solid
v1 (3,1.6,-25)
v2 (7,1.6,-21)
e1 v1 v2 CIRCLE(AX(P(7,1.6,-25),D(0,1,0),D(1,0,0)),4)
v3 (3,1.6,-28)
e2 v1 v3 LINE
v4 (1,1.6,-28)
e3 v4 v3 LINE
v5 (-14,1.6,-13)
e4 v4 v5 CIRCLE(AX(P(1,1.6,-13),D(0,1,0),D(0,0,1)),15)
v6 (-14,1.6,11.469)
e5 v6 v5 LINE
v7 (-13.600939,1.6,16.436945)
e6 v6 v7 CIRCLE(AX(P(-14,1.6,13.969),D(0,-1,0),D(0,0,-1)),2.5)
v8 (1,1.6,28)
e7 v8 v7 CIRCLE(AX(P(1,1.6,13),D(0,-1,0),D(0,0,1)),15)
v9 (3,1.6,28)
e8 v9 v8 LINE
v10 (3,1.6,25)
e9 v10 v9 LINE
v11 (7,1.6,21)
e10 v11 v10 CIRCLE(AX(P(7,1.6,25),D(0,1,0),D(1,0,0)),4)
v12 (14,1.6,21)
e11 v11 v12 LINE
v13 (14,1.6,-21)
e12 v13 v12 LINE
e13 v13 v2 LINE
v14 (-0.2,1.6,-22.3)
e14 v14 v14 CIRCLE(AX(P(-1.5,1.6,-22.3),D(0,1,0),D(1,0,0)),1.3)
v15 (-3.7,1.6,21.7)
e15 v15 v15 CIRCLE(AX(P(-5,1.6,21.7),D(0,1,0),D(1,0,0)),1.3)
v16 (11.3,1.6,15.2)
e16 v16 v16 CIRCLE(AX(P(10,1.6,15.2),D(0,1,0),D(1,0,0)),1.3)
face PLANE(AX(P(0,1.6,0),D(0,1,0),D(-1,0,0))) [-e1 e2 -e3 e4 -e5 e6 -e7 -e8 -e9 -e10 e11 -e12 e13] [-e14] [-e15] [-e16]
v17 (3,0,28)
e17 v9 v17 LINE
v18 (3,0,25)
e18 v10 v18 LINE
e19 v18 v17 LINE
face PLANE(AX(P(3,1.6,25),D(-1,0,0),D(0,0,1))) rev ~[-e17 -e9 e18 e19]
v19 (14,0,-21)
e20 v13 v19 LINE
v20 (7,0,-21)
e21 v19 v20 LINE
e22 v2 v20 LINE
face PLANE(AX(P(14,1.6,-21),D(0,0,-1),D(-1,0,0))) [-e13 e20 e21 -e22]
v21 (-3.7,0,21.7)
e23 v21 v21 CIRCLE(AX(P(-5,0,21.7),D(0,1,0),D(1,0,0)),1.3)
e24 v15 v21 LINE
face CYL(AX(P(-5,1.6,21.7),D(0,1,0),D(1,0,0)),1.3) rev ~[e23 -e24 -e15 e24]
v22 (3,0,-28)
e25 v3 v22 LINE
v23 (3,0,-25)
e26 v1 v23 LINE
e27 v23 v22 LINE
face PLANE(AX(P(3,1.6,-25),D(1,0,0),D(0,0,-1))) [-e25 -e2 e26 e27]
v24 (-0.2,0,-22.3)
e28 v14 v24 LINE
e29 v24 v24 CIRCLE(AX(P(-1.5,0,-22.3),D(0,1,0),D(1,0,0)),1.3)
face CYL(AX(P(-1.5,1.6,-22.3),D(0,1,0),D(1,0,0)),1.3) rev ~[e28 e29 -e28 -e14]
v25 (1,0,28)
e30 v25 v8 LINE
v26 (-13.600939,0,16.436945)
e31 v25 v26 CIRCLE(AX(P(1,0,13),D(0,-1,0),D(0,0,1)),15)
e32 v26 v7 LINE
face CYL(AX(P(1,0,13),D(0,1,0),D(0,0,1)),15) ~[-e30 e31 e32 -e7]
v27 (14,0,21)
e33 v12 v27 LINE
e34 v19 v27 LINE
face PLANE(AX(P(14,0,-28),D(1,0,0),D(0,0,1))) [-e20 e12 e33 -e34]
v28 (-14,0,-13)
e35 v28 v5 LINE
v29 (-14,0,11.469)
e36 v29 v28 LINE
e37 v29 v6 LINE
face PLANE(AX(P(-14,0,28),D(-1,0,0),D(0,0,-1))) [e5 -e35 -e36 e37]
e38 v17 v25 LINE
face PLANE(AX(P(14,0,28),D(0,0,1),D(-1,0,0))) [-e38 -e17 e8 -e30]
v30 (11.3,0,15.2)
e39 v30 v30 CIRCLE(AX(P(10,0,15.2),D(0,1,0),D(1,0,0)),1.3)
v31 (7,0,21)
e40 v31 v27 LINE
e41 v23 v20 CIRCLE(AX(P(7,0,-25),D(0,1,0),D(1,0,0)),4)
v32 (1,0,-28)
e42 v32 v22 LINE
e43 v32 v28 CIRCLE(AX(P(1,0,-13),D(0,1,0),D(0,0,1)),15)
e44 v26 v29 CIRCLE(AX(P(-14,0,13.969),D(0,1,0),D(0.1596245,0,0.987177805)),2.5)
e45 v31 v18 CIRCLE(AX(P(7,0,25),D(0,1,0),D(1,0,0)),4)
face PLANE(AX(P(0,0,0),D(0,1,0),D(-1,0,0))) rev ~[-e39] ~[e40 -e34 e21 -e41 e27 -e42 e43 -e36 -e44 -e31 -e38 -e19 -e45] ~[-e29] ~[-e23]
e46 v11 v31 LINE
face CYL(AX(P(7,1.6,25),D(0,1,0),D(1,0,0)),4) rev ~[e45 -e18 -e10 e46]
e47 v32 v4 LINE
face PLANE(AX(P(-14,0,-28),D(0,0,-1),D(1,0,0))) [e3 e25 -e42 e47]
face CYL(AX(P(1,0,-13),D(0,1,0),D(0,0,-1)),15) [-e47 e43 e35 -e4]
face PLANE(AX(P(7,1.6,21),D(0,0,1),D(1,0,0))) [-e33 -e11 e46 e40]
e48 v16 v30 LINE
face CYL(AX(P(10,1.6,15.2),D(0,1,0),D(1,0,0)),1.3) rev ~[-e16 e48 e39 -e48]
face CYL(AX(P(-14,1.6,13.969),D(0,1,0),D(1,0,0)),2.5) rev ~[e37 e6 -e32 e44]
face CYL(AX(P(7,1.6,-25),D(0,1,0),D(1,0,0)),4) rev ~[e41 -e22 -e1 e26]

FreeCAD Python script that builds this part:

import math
import FreeCAD as App
import Part
import Sketcher

V = App.Vector


def edges_at(feature, points):
    """Names of the edges that pass closest to the given points."""
    edges = feature.Shape.Edges
    near = lambda p: min(range(len(edges)), key=lambda i: edges[i].distToShape(Part.Vertex(*p))[0])
    return sorted({f"Edge{near(p) + 1}" for p in points})


def add_polygon(sketch, points):
    """Adds a closed chain of lines whose ends are joined by coincident constraints."""
    first, n = sketch.GeometryCount, len(points)
    for a, b in zip(points, points[1:] + points[:1]):
        sketch.addGeometry(Part.LineSegment(App.Vector(*a, 0), App.Vector(*b, 0)), False)
    for i in range(n):
        sketch.addConstraint(Sketcher.Constraint("Coincident", first + i, 2, first + (i + 1) % n, 1))

doc = App.newDocument("Part")
params = doc.addObject("Spreadsheet::Sheet", "Params")
for row, (alias, value) in enumerate([
    ("sketch1_width", "28 mm"),
    ("sketch1_height", "56 mm"),
    ("pad1_length", "1.6 mm"),
    ("fillet_radius", "15 mm"),
    ("sketch2_radius", "4 mm"),
    ("sketch2_width", "7 mm"),
    ("sketch3_diameter", "2.6 mm"),
    ("sketch4_diameter", "5 mm"),
], start=1):
    params.set(f"A{row}", alias)
    params.set(f"B{row}", "=" + value)
    params.setAlias(f"B{row}", alias)

body = doc.addObject("PartDesign::Body", "Body")

# Sketch on XZ plane
sketch1 = body.newObject("Sketcher::SketchObject", "Sketch")
sketch1.AttachmentSupport = (doc.getObject("XZ_Plane"), [""])
sketch1.MapMode = "FlatFace"
add_polygon(sketch1, [(14, -28), (-14, -28), (-14, 28), (14, 28)])  # lines 0-3
sketch1.addConstraint(Sketcher.Constraint("Horizontal", 0))
sketch1.addConstraint(Sketcher.Constraint("Vertical", 1))
sketch1.addConstraint(Sketcher.Constraint("Horizontal", 2))
sketch1.addConstraint(Sketcher.Constraint("Vertical", 3))
sketch1.addConstraint(Sketcher.Constraint("Symmetric", 0, 2, 2, 2, -1, 1))
sketch1.addConstraint(Sketcher.Constraint("DistanceX", 0, 2, 0, 1, 28.0))
sketch1.addConstraint(Sketcher.Constraint("DistanceY", 1, 1, 1, 2, 56.0))
sketch1.setExpression("Constraints[9]", "Params.sketch1_width")
sketch1.setExpression("Constraints[10]", "Params.sketch1_height")
pad1 = body.newObject("PartDesign::Pad", "Pad")
pad1.Profile = sketch1
pad1.setExpression("Length", "Params.pad1_length")
pad1.Reversed = True
doc.recompute()

fillet = body.newObject("PartDesign::Fillet", "Fillet")
fillet.Base = (pad1, edges_at(pad1, [(-14, 0.8, -28), (-14, 0.8, 28)]))
fillet.setExpression("Radius", "Params.fillet_radius")

# Sketch on XZ plane
sketch2 = body.newObject("Sketcher::SketchObject", "Sketch001")
sketch2.AttachmentSupport = (doc.getObject("XZ_Plane"), [""])
sketch2.MapMode = "FlatFace"
sketch2.AttachmentOffset = App.Placement(V(0, 0, -1.6), App.Rotation())
sketch2.addGeometry(Part.ArcOfCircle(Part.Circle(V(7, -25, 0), V(0, 0, 1), 4), math.radians(90), math.radians(180)), False)
sketch2.addGeometry(Part.LineSegment(V(7, -21, 0), V(14, -21, 0)), False)
sketch2.addGeometry(Part.LineSegment(V(14, -21, 0), V(14, -28, 0)), False)
sketch2.addGeometry(Part.LineSegment(V(14, -28, 0), V(3, -28, 0)), False)
sketch2.addGeometry(Part.LineSegment(V(3, -28, 0), V(3, -25, 0)), False)
sketch2.addGeometry(Part.LineSegment(V(14, 28, 0), V(14, 21, 0)), False)
sketch2.addGeometry(Part.LineSegment(V(14, 21, 0), V(7, 21, 0)), False)
sketch2.addGeometry(Part.ArcOfCircle(Part.Circle(V(7, 25, 0), V(0, 0, 1), 4), math.radians(180), math.radians(270)), False)
sketch2.addGeometry(Part.LineSegment(V(3, 25, 0), V(3, 28, 0)), False)
sketch2.addGeometry(Part.LineSegment(V(3, 28, 0), V(14, 28, 0)), False)
sketch2.addConstraint(Sketcher.Constraint("Tangent", 0, 1, 1, 1))
sketch2.addConstraint(Sketcher.Constraint("Coincident", 1, 2, 2, 1))
sketch2.addConstraint(Sketcher.Constraint("Coincident", 2, 2, 3, 1))
sketch2.addConstraint(Sketcher.Constraint("Coincident", 3, 2, 4, 1))
sketch2.addConstraint(Sketcher.Constraint("Tangent", 4, 2, 0, 2))
sketch2.addConstraint(Sketcher.Constraint("Coincident", 5, 2, 6, 1))
sketch2.addConstraint(Sketcher.Constraint("Tangent", 6, 2, 7, 2))
sketch2.addConstraint(Sketcher.Constraint("Tangent", 7, 1, 8, 1))
sketch2.addConstraint(Sketcher.Constraint("Coincident", 8, 2, 9, 1))
sketch2.addConstraint(Sketcher.Constraint("Coincident", 9, 2, 5, 1))
sketch2.addConstraint(Sketcher.Constraint("Horizontal", 1))
sketch2.addConstraint(Sketcher.Constraint("Vertical", 2))
sketch2.addConstraint(Sketcher.Constraint("Horizontal", 3))
sketch2.addConstraint(Sketcher.Constraint("Vertical", 4))
sketch2.addConstraint(Sketcher.Constraint("Vertical", 5))
sketch2.addConstraint(Sketcher.Constraint("Horizontal", 6))
sketch2.addConstraint(Sketcher.Constraint("Vertical", 8))
sketch2.addConstraint(Sketcher.Constraint("Horizontal", 9))
sketch2.addConstraint(Sketcher.Constraint("Equal", 0, 7))
sketch2.addConstraint(Sketcher.Constraint("Symmetric", 0, 3, 7, 3, -1))
sketch2.addConstraint(Sketcher.Constraint("Symmetric", 2, 2, 9, 2, -1))
sketch2.addConstraint(Sketcher.Constraint("Equal", 6, 2))
sketch2.addConstraint(Sketcher.Constraint("Radius", 0, 4.0))
sketch2.addConstraint(Sketcher.Constraint("DistanceX", 1, 1, 1, 2, 7.0))
sketch2.addConstraint(Sketcher.Constraint("DistanceX", -1, 1, 0, 3, 7.0))
sketch2.addConstraint(Sketcher.Constraint("DistanceY", 0, 3, -1, 1, 25.0))
sketch2.setExpression("Constraints[22]", "Params.sketch2_radius")
sketch2.setExpression("Constraints[23]", "Params.sketch2_width")
pocket1 = body.newObject("PartDesign::Pocket", "Pocket")
pocket1.Profile = sketch2
pocket1.Type = "ThroughAll"
pocket1.Reversed = True

# Sketch on XZ plane
sketch3 = body.newObject("Sketcher::SketchObject", "Sketch002")
sketch3.AttachmentSupport = (doc.getObject("XZ_Plane"), [""])
sketch3.MapMode = "FlatFace"
sketch3.AttachmentOffset = App.Placement(V(0, 0, -1.6), App.Rotation())
sketch3.addGeometry(Part.Circle(V(-5, 21.7, 0), V(0, 0, 1), 1.3), False)
sketch3.addGeometry(Part.Circle(V(-1.5, -22.3, 0), V(0, 0, 1), 1.3), False)
sketch3.addGeometry(Part.Circle(V(10, 15.2, 0), V(0, 0, 1), 1.3), False)
sketch3.addConstraint(Sketcher.Constraint("Equal", 0, 1))
sketch3.addConstraint(Sketcher.Constraint("Equal", 1, 2))
sketch3.addConstraint(Sketcher.Constraint("Diameter", 0, 2.6))
sketch3.addConstraint(Sketcher.Constraint("DistanceX", 0, 3, 2, 3, 15.0))
sketch3.addConstraint(Sketcher.Constraint("DistanceY", -1, 1, 0, 3, 21.7))
sketch3.addConstraint(Sketcher.Constraint("DistanceY", 2, 3, 0, 3, 6.5))
sketch3.addConstraint(Sketcher.Constraint("DistanceX", 0, 3, -1, 1, 5.0))
sketch3.addConstraint(Sketcher.Constraint("DistanceY", 1, 3, 0, 3, 44.0))
sketch3.addConstraint(Sketcher.Constraint("DistanceX", 1, 3, -1, 1, 1.5))
sketch3.setExpression("Constraints[2]", "Params.sketch3_diameter")
pocket2 = body.newObject("PartDesign::Pocket", "Pocket001")
pocket2.Profile = sketch3
pocket2.Type = "ThroughAll"
pocket2.Reversed = True

# Sketch on XZ plane
sketch4 = body.newObject("Sketcher::SketchObject", "Sketch003")
sketch4.AttachmentSupport = (doc.getObject("XZ_Plane"), [""])
sketch4.MapMode = "FlatFace"
sketch4.AttachmentOffset = App.Placement(V(0, 0, -1.6), App.Rotation())
sketch4.addGeometry(Part.Circle(V(-14, 14, 0), V(0, 0, 1), 2.5), False)
sketch4.addConstraint(Sketcher.Constraint("Diameter", 0, 5.0))
sketch4.addConstraint(Sketcher.Constraint("DistanceX", 0, 3, -1, 1, 14.0))
sketch4.addConstraint(Sketcher.Constraint("DistanceY", -1, 1, 0, 3, 13.969))
sketch4.setExpression("Constraints[0]", "Params.sketch4_diameter")
pocket3 = body.newObject("PartDesign::Pocket", "Pocket002")
pocket3.Profile = sketch4
pocket3.Type = "ThroughAll"
pocket3.Reversed = True

doc.recompute()
